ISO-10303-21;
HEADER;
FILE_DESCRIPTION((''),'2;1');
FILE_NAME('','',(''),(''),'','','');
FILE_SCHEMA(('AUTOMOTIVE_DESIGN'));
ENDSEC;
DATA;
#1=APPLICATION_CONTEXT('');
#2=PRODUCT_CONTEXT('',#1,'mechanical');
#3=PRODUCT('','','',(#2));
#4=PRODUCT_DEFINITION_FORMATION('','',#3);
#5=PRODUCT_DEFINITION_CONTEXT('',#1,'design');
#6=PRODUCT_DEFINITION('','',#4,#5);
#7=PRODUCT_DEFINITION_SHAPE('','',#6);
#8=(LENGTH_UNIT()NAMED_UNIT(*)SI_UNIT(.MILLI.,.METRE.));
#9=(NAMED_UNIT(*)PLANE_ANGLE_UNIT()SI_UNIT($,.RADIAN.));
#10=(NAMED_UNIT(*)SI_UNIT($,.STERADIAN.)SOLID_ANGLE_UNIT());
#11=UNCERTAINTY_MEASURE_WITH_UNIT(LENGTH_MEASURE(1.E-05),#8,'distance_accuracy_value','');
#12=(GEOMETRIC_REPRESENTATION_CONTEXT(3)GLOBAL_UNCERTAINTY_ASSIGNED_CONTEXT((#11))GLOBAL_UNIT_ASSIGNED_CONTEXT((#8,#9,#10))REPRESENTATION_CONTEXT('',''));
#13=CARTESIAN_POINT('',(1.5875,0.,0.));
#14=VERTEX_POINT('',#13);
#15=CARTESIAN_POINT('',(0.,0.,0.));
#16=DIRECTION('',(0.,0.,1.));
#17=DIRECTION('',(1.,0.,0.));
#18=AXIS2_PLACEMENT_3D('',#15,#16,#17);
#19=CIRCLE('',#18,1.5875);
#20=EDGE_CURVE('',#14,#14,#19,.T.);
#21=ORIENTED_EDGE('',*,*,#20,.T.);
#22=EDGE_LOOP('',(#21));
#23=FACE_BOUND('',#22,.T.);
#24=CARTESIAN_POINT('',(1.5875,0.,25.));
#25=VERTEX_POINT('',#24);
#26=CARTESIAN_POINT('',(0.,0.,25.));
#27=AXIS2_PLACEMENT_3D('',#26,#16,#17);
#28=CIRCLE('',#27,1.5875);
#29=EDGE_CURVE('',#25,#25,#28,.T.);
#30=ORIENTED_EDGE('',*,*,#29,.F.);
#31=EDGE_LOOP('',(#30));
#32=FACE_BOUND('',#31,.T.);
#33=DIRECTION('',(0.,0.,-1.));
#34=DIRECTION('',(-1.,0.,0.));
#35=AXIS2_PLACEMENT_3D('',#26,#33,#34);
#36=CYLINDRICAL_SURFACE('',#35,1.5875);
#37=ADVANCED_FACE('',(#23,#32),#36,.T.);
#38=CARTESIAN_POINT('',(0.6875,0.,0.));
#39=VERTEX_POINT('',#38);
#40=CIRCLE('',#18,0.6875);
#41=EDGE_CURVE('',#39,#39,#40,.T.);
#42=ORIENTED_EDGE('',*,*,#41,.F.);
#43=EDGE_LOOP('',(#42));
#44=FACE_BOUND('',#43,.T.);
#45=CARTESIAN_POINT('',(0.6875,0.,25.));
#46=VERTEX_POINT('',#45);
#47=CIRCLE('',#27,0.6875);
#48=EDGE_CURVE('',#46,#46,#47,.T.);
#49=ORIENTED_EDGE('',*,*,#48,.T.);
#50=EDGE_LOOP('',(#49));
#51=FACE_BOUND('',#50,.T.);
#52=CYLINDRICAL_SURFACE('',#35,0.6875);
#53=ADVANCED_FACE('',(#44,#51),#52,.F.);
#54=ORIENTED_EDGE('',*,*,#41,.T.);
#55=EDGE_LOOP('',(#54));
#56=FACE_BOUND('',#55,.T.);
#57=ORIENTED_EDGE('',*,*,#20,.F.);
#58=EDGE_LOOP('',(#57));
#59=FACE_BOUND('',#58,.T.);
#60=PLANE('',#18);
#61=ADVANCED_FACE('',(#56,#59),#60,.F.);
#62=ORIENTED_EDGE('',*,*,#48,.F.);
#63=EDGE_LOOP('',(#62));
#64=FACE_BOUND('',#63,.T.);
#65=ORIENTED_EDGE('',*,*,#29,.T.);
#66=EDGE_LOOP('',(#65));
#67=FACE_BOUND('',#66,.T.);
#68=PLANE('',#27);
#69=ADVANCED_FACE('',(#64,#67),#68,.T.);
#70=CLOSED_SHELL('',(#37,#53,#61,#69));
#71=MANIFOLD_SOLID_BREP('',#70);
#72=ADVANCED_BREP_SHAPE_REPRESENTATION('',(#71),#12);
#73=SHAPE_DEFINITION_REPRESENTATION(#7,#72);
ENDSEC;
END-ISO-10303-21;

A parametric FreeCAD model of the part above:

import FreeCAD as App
import Part
import Sketcher
Q = App.Units.Quantity

doc = App.newDocument("Part")
body = doc.addObject("PartDesign::Body", "Body")

# Sketch on XY plane
sketch1 = doc.addObject("Sketcher::SketchObject", "Sketch")
body.addObject(sketch1)
sketch1.AttachmentSupport = (doc.XY_Plane, [""])
sketch1.MapMode = "FlatFace"
sketch1.addGeometry([
    Part.Circle(App.Vector(0, 0, 0), App.Vector(0, 0, 1), 1.6),
    Part.Circle(App.Vector(0, 0, 0), App.Vector(0, 0, 1), 0.7),
], False)
sketch1.addConstraint([
    Sketcher.Constraint("Coincident", 0, 3, -1, 1),
    Sketcher.Constraint("Coincident", 1, 3, -1, 1),
    Sketcher.Constraint("Diameter", 0, Q("3.175 mm")),
    Sketcher.Constraint("Diameter", 1, Q("1.375 mm")),
])
pad1 = doc.addObject("PartDesign::Pad", "Pad")
body.addObject(pad1)
pad1.Profile = sketch1
pad1.Length = 25

doc.recompute()
